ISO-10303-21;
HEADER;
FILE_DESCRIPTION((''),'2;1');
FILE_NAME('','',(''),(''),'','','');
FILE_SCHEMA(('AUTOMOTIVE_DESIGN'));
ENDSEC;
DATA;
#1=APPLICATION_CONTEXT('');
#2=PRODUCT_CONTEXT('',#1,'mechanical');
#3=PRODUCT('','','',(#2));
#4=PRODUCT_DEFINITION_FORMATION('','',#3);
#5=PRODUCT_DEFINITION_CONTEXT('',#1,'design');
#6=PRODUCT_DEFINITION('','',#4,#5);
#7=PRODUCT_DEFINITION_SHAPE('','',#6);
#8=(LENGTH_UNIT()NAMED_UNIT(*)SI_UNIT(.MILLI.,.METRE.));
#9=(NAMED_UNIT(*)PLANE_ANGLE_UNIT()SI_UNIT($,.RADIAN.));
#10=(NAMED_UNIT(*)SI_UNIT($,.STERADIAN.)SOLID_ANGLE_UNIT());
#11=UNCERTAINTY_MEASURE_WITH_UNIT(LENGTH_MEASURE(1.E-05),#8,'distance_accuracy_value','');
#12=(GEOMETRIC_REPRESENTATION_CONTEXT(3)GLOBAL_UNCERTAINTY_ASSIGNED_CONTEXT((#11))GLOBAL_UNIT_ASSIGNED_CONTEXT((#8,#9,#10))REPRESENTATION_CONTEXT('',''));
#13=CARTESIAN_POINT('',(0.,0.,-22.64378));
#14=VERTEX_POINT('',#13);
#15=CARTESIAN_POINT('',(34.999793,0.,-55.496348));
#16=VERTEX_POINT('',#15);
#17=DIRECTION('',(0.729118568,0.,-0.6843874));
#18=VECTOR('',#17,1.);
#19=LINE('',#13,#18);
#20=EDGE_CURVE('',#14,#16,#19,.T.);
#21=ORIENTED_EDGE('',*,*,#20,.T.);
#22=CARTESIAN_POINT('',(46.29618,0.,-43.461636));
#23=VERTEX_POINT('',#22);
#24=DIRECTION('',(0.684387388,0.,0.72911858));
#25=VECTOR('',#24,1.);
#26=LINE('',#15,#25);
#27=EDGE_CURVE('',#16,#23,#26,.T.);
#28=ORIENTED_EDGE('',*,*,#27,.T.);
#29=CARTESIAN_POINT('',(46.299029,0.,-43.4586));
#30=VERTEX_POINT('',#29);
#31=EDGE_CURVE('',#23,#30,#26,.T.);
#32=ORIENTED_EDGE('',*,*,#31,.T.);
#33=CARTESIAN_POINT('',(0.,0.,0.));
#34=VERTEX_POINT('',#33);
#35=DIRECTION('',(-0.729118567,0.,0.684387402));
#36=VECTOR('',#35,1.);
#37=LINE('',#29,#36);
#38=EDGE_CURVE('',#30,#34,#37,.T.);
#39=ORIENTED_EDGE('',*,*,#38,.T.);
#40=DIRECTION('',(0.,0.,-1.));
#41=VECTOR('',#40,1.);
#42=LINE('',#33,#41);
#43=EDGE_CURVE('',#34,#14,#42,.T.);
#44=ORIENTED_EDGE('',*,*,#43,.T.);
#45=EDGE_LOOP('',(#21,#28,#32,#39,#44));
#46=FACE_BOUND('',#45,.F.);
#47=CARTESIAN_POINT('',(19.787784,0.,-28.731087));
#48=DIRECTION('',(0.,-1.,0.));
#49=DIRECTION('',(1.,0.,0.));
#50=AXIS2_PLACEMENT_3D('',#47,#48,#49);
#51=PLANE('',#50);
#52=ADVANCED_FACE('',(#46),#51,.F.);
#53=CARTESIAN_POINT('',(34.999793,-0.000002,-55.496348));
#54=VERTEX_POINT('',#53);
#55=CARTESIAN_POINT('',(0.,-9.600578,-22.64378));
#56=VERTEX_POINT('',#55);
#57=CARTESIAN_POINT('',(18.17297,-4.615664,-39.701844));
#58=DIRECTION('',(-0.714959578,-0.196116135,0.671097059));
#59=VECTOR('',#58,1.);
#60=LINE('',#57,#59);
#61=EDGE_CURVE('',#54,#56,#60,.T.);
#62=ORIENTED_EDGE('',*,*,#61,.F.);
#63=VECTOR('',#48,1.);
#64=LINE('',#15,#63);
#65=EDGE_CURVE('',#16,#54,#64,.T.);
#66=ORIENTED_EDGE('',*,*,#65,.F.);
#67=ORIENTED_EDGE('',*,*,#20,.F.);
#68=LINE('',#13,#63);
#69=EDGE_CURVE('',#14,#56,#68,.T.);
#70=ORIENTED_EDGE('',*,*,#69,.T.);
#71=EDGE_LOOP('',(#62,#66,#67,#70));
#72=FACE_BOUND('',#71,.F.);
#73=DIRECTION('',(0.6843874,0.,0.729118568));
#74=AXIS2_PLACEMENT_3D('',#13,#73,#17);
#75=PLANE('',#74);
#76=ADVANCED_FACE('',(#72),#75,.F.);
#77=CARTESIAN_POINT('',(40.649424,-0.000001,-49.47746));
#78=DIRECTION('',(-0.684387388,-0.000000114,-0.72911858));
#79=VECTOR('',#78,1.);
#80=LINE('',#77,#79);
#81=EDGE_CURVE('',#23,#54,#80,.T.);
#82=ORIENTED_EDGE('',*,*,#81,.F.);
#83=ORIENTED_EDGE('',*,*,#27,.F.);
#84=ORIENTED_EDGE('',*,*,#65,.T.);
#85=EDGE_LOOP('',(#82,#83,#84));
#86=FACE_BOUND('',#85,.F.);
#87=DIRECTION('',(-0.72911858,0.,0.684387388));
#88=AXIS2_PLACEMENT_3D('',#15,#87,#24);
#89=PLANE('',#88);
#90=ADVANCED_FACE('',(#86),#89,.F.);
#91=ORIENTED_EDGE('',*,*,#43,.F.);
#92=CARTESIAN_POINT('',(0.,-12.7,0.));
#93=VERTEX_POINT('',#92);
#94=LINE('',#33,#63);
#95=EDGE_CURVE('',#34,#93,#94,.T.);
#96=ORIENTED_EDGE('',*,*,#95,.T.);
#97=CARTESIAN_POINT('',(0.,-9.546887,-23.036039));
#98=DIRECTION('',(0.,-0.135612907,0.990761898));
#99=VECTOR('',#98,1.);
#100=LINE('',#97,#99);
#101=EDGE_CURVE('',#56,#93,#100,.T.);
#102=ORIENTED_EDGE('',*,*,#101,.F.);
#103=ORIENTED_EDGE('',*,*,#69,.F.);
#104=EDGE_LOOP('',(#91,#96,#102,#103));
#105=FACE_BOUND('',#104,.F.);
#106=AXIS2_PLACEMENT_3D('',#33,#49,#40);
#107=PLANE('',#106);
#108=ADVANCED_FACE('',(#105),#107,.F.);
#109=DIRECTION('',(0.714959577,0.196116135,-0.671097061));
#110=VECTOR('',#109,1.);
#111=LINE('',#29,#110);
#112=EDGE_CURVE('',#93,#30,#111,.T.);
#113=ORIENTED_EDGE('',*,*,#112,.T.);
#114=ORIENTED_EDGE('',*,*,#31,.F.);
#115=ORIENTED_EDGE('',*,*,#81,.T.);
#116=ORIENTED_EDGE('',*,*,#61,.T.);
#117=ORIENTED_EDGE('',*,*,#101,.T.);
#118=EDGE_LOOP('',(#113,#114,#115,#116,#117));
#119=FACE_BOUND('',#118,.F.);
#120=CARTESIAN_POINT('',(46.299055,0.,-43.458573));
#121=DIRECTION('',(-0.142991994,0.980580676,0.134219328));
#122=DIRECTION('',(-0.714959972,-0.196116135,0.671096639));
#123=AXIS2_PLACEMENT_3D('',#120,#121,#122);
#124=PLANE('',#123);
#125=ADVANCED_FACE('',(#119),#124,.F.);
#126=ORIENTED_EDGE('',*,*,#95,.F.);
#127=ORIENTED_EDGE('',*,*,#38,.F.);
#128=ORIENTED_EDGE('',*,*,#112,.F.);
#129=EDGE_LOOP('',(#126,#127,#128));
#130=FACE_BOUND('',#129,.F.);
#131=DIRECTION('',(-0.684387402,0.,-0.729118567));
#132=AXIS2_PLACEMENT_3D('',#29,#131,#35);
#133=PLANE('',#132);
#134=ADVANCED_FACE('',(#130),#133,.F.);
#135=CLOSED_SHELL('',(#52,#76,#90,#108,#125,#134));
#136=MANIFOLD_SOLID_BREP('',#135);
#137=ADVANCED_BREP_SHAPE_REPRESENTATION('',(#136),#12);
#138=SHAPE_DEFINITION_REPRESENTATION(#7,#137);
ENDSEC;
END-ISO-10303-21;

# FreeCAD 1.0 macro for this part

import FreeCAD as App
import Part
import Sketcher
from FreeCAD import Vector
Q = App.Units.Quantity


def add_polygon(sketch, points):
    """Adds a closed chain of lines whose ends are joined by coincident constraints."""
    first, n = sketch.GeometryCount, len(points)
    for a, b in zip(points, points[1:] + points[:1]):
        sketch.addGeometry(Part.LineSegment(App.Vector(*a, 0), App.Vector(*b, 0)), False)
    for i in range(n):
        sketch.addConstraint(Sketcher.Constraint("Coincident", first + i, 2, first + (i + 1) % n, 1))

doc = App.newDocument("Part")
body = doc.addObject("PartDesign::Body", "Body")

# Sketch on XZ plane
sketch1 = body.newObject("Sketcher::SketchObject", "Sketch")
sketch1.AttachmentSupport = (doc.getObject("XZ_Plane"), [""])
sketch1.MapMode = "FlatFace"
add_polygon(sketch1, [(46, -43), (0, 0), (0, -23), (35, -55)])  # lines 0-3
sketch1.addConstraint(Sketcher.Constraint("Vertical", 1))
sketch1.addConstraint(Sketcher.Constraint("Coincident", 0, 2, -1, 1))
sketch1.addConstraint(Sketcher.Constraint("Parallel", 0, 2))
sketch1.addConstraint(Sketcher.Constraint("Perpendicular", 2, 3))
sketch1.addConstraint(Sketcher.Constraint("Distance", 0, Q("2.5 in")))
sketch1.addConstraint(Sketcher.Constraint("Distance", 3, Q("0.65 in")))
sketch1.addConstraint(Sketcher.Constraint("DistanceY", 1, 2, 1, 1, Q("22.64378 mm")))
pad1 = body.newObject("PartDesign::Pad", "Pad")
pad1.Profile = sketch1
pad1.Length = Q("0.5 in")

# Sketch on an angled plane
sketch2 = body.newObject("Sketcher::SketchObject", "Sketch001")
sketch2.Placement = App.Placement(Vector(0, 0, 0), App.Rotation(Vector(0.72911897, 0, -0.684386972), Vector(0, 1, 0), Vector(0.684386972, 0, 0.72911897), "ZXY"))
add_polygon(sketch2, [(63, -13), (63, 0), (0, -13)])  # lines 0-2
sketch2.addConstraint(Sketcher.Constraint("Vertical", 0))
sketch2.addConstraint(Sketcher.Constraint("Horizontal", 2))
sketch2.addConstraint(Sketcher.Constraint("PointOnObject", 0, 2, -1))
sketch2.addConstraint(Sketcher.Constraint("PointOnObject", 1, 2, -2))
sketch2.addConstraint(Sketcher.Constraint("DistanceX", 2, 1, 2, 2, Q("2.5 in")))
sketch2.addConstraint(Sketcher.Constraint("DistanceY", 0, 1, 0, 2, Q("0.5 in")))
pocket1 = body.newObject("PartDesign::Pocket", "Pocket")
pocket1.Profile = sketch2
pocket1.Type = "ThroughAll"

doc.recompute()
